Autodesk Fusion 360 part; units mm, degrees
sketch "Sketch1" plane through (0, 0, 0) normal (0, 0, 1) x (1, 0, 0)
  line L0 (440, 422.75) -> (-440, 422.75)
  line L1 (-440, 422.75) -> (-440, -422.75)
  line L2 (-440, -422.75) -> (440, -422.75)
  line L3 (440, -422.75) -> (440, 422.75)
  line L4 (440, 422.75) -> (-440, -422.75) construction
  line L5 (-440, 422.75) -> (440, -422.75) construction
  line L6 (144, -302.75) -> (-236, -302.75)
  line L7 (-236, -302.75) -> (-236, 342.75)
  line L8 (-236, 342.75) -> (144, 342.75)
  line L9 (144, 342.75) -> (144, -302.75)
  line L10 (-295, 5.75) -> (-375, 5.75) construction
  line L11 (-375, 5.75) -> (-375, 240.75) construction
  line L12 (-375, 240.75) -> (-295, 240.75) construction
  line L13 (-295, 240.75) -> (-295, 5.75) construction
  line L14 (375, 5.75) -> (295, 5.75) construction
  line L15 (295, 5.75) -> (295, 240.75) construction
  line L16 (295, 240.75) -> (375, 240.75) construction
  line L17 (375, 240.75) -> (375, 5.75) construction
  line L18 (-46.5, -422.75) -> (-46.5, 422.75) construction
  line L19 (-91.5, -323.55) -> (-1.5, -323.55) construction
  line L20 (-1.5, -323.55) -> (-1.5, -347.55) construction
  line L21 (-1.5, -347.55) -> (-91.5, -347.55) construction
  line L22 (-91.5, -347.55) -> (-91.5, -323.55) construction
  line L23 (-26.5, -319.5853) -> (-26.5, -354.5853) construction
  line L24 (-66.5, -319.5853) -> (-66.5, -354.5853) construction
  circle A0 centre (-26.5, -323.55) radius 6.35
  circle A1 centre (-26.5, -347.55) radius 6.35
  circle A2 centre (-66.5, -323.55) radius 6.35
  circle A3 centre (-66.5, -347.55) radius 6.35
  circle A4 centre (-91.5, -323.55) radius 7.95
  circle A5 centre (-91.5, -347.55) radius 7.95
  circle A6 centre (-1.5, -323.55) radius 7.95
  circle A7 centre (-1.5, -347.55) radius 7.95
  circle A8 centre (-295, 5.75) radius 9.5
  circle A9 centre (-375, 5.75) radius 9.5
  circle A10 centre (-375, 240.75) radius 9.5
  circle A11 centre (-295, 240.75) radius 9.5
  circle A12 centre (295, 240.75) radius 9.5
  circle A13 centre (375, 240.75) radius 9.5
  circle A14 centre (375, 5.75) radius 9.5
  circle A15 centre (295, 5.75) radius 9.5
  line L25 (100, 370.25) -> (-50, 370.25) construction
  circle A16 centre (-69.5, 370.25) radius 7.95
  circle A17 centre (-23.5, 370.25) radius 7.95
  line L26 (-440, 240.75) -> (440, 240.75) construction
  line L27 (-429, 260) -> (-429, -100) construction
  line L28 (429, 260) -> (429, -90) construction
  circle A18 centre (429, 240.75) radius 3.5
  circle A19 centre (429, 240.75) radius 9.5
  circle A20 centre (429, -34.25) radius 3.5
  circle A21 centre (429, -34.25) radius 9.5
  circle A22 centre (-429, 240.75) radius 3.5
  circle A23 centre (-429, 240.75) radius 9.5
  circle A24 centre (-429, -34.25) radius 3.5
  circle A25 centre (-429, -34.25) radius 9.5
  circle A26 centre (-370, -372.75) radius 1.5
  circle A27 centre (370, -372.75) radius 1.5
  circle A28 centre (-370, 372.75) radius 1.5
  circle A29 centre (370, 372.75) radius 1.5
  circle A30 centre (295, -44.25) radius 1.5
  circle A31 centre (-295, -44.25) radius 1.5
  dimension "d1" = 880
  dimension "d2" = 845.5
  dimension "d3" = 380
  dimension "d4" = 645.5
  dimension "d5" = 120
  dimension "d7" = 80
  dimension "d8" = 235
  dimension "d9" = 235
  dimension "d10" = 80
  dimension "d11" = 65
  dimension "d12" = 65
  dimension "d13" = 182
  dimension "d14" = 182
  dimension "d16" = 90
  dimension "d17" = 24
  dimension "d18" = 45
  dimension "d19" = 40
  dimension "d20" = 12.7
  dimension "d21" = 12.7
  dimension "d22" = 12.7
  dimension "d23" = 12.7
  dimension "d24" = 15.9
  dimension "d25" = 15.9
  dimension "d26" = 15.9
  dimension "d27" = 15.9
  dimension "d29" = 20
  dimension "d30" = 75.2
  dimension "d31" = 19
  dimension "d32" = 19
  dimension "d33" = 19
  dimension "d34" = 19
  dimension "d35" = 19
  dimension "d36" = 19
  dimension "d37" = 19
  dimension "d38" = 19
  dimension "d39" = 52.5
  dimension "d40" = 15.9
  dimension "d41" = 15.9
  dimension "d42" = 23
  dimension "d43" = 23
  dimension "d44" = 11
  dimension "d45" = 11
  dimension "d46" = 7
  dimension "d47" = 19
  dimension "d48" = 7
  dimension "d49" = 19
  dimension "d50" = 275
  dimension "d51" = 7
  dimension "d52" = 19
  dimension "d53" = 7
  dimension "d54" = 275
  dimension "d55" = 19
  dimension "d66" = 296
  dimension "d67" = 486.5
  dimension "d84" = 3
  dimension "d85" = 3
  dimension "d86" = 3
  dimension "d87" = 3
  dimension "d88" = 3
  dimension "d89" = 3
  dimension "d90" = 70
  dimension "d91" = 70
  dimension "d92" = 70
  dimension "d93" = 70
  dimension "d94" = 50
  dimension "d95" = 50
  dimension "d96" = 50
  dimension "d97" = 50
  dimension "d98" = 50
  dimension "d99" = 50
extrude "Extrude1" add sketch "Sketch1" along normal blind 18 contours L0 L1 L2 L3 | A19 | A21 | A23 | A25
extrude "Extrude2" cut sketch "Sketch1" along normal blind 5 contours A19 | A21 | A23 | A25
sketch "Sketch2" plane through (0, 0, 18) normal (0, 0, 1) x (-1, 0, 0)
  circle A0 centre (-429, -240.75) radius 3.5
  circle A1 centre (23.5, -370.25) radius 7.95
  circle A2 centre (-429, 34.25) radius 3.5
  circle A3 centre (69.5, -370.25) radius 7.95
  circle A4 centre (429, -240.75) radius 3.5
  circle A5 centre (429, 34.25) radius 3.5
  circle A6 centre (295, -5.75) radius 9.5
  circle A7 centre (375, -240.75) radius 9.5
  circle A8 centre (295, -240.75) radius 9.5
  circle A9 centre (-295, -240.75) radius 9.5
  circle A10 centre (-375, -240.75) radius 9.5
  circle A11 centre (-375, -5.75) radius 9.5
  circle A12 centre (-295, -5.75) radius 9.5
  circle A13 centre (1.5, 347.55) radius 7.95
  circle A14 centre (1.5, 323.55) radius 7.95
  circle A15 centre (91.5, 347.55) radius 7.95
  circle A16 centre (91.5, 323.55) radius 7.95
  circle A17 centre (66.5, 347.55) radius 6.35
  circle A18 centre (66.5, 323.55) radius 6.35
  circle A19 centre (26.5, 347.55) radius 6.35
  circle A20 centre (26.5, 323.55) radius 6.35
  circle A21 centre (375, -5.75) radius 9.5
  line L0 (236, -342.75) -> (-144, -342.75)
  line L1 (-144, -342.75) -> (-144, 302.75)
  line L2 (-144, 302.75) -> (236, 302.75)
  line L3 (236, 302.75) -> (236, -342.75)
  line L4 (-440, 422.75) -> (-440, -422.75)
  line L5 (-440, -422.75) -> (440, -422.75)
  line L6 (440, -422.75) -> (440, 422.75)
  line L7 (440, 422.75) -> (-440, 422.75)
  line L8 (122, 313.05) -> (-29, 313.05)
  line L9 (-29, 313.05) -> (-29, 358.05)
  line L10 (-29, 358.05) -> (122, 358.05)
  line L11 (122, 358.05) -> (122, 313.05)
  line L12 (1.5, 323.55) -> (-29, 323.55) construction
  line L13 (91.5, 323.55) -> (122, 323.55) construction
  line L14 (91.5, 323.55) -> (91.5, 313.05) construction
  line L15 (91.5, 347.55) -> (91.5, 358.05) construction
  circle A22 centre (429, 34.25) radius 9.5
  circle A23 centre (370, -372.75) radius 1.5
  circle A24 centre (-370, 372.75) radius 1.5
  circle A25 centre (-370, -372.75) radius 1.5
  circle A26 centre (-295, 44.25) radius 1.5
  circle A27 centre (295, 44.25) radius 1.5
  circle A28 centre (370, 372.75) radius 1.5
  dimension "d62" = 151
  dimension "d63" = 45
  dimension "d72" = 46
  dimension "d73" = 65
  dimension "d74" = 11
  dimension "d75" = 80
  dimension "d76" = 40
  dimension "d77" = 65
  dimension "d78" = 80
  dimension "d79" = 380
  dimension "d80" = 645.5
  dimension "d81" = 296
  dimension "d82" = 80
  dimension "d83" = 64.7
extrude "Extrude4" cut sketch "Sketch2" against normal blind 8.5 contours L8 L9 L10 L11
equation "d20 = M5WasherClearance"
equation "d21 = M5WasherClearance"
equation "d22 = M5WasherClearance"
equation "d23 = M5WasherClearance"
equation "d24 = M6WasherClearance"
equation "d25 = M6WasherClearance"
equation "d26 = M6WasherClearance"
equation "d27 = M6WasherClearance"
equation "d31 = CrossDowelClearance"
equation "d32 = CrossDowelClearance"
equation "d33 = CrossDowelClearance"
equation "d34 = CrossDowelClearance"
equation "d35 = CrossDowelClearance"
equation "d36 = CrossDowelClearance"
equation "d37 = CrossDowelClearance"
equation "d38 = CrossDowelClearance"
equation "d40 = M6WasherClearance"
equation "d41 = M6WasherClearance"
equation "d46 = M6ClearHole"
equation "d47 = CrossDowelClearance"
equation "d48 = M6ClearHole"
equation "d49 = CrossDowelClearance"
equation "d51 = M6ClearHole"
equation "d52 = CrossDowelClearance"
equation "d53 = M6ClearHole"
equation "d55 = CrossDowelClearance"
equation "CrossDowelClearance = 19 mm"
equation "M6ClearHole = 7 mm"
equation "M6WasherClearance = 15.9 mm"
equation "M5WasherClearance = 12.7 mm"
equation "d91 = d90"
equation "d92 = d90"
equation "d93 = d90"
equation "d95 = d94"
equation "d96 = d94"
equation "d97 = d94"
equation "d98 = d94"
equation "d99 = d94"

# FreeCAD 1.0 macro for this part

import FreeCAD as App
import Part
import Sketcher

doc = App.newDocument("Part")
body = doc.addObject("PartDesign::Body", "Body")

sketch1 = body.newObject("Sketcher::SketchObject", "Sketch")
sketch1.AttachmentSupport = (doc.getObject("XY_Plane"), [""])
sketch1.MapMode = "FlatFace"
sketch1.addGeometry(Part.LineSegment(App.Vector(440, -422.8, 0), App.Vector(440, 422.8, 0)), False)
sketch1.addGeometry(Part.LineSegment(App.Vector(440, 422.8, 0), App.Vector(-440, 422.8, 0)), False)
sketch1.addGeometry(Part.LineSegment(App.Vector(-440, 422.8, 0), App.Vector(-440, -422.8, 0)), False)
sketch1.addGeometry(Part.LineSegment(App.Vector(-440, -422.8, 0), App.Vector(440, -422.8, 0)), False)
sketch1.addGeometry(Part.Circle(App.Vector(-370, -372.8, 0), App.Vector(0, 0, 1), 1.5), False)
sketch1.addGeometry(Part.Circle(App.Vector(-91.5, -347.6, 0), App.Vector(0, 0, 1), 8), False)
sketch1.addGeometry(Part.Circle(App.Vector(-66.5, -347.6, 0), App.Vector(0, 0, 1), 6.3), False)
sketch1.addGeometry(Part.Circle(App.Vector(-91.5, -323.6, 0), App.Vector(0, 0, 1), 8), False)
sketch1.addGeometry(Part.Circle(App.Vector(-66.5, -323.6, 0), App.Vector(0, 0, 1), 6.3), False)
sketch1.addGeometry(Part.Circle(App.Vector(-26.5, -347.6, 0), App.Vector(0, 0, 1), 6.3), False)
sketch1.addGeometry(Part.Circle(App.Vector(-1.5, -347.6, 0), App.Vector(0, 0, 1), 8), False)
sketch1.addGeometry(Part.Circle(App.Vector(-26.5, -323.6, 0), App.Vector(0, 0, 1), 6.3), False)
sketch1.addGeometry(Part.Circle(App.Vector(-1.5, -323.6, 0), App.Vector(0, 0, 1), 8), False)
sketch1.addGeometry(Part.Circle(App.Vector(-295, -44.2, 0), App.Vector(0, 0, 1), 1.5), False)
sketch1.addGeometry(Part.Circle(App.Vector(370, -372.8, 0), App.Vector(0, 0, 1), 1.5), False)
sketch1.addGeometry(Part.Circle(App.Vector(295, -44.2, 0), App.Vector(0, 0, 1), 1.5), False)
sketch1.addGeometry(Part.Circle(App.Vector(-375, 5.8, 0), App.Vector(0, 0, 1), 9.5), False)
sketch1.addGeometry(Part.Circle(App.Vector(-295, 5.8, 0), App.Vector(0, 0, 1), 9.5), False)
sketch1.addGeometry(Part.LineSegment(App.Vector(144, 342.8, 0), App.Vector(144, -302.8, 0)), False)
sketch1.addGeometry(Part.LineSegment(App.Vector(144, -302.8, 0), App.Vector(-236, -302.8, 0)), False)
sketch1.addGeometry(Part.LineSegment(App.Vector(-236, -302.8, 0), App.Vector(-236, 342.8, 0)), False)
sketch1.addGeometry(Part.LineSegment(App.Vector(-236, 342.8, 0), App.Vector(144, 342.8, 0)), False)
sketch1.addGeometry(Part.Circle(App.Vector(-375, 240.8, 0), App.Vector(0, 0, 1), 9.5), False)
sketch1.addGeometry(Part.Circle(App.Vector(-295, 240.8, 0), App.Vector(0, 0, 1), 9.5), False)
sketch1.addGeometry(Part.Circle(App.Vector(-370, 372.8, 0), App.Vector(0, 0, 1), 1.5), False)
sketch1.addGeometry(Part.Circle(App.Vector(-69.5, 370.2, 0), App.Vector(0, 0, 1), 8), False)
sketch1.addGeometry(Part.Circle(App.Vector(-23.5, 370.2, 0), App.Vector(0, 0, 1), 8), False)
sketch1.addGeometry(Part.Circle(App.Vector(295, 5.8, 0), App.Vector(0, 0, 1), 9.5), False)
sketch1.addGeometry(Part.Circle(App.Vector(375, 5.8, 0), App.Vector(0, 0, 1), 9.5), False)
sketch1.addGeometry(Part.Circle(App.Vector(295, 240.8, 0), App.Vector(0, 0, 1), 9.5), False)
sketch1.addGeometry(Part.Circle(App.Vector(375, 240.8, 0), App.Vector(0, 0, 1), 9.5), False)
sketch1.addGeometry(Part.Circle(App.Vector(370, 372.8, 0), App.Vector(0, 0, 1), 1.5), False)
sketch1.addGeometry(Part.Circle(App.Vector(-429, -34.2, 0), App.Vector(0, 0, 1), 3.5), False)
sketch1.addGeometry(Part.Circle(App.Vector(429, -34.2, 0), App.Vector(0, 0, 1), 3.5), False)
sketch1.addGeometry(Part.Circle(App.Vector(-429, 240.8, 0), App.Vector(0, 0, 1), 3.5), False)
sketch1.addGeometry(Part.Circle(App.Vector(429, 240.8, 0), App.Vector(0, 0, 1), 3.5), False)
sketch1.addConstraint(Sketcher.Constraint("Coincident", 0, 2, 1, 1))
sketch1.addConstraint(Sketcher.Constraint("Coincident", 1, 2, 2, 1))
sketch1.addConstraint(Sketcher.Constraint("Coincident", 2, 2, 3, 1))
sketch1.addConstraint(Sketcher.Constraint("Coincident", 3, 2, 0, 1))
sketch1.addConstraint(Sketcher.Constraint("Coincident", 18, 2, 19, 1))
sketch1.addConstraint(Sketcher.Constraint("Coincident", 19, 2, 20, 1))
sketch1.addConstraint(Sketcher.Constraint("Coincident", 20, 2, 21, 1))
sketch1.addConstraint(Sketcher.Constraint("Coincident", 21, 2, 18, 1))
sketch1.addConstraint(Sketcher.Constraint("Vertical", 0))
sketch1.addConstraint(Sketcher.Constraint("Horizontal", 1))
sketch1.addConstraint(Sketcher.Constraint("Vertical", 2))
sketch1.addConstraint(Sketcher.Constraint("Horizontal", 3))
sketch1.addConstraint(Sketcher.Constraint("Vertical", 18))
sketch1.addConstraint(Sketcher.Constraint("Horizontal", 19))
sketch1.addConstraint(Sketcher.Constraint("Vertical", 20))
sketch1.addConstraint(Sketcher.Constraint("Horizontal", 21))
sketch1.addConstraint(Sketcher.Constraint("Equal", 5, 7))
sketch1.addConstraint(Sketcher.Constraint("Equal", 6, 8))
sketch1.addConstraint(Sketcher.Constraint("Equal", 8, 9))
sketch1.addConstraint(Sketcher.Constraint("Equal", 7, 10))
sketch1.addConstraint(Sketcher.Constraint("Equal", 9, 11))
sketch1.addConstraint(Sketcher.Constraint("Equal", 10, 12))
sketch1.addConstraint(Sketcher.Constraint("Equal", 4, 13))
sketch1.addConstraint(Sketcher.Constraint("Equal", 13, 14))
sketch1.addConstraint(Sketcher.Constraint("Equal", 14, 15))
sketch1.addConstraint(Sketcher.Constraint("Equal", 16, 17))
sketch1.addConstraint(Sketcher.Constraint("Equal", 17, 22))
sketch1.addConstraint(Sketcher.Constraint("Equal", 22, 23))
sketch1.addConstraint(Sketcher.Constraint("Equal", 15, 24))
sketch1.addConstraint(Sketcher.Constraint("Equal", 12, 25))
sketch1.addConstraint(Sketcher.Constraint("Equal", 25, 26))
sketch1.addConstraint(Sketcher.Constraint("Equal", 23, 27))
sketch1.addConstraint(Sketcher.Constraint("Equal", 27, 28))
sketch1.addConstraint(Sketcher.Constraint("Equal", 28, 29))
sketch1.addConstraint(Sketcher.Constraint("Equal", 29, 30))
sketch1.addConstraint(Sketcher.Constraint("Equal", 24, 31))
sketch1.addConstraint(Sketcher.Constraint("Equal", 32, 33))
sketch1.addConstraint(Sketcher.Constraint("Equal", 33, 34))
sketch1.addConstraint(Sketcher.Constraint("Equal", 34, 35))
sketch1.addConstraint(Sketcher.Constraint("Symmetric", 14, 3, 24, 3, -1, 1))
sketch1.addConstraint(Sketcher.Constraint("Symmetric", 4, 3, 31, 3, -1, 1))
sketch1.addConstraint(Sketcher.Constraint("Symmetric", 0, 2, 2, 2, -1, 1))
sketch1.addConstraint(Sketcher.Constraint("Symmetric", 4, 3, 14, 3, -2))
sketch1.addConstraint(Sketcher.Constraint("Symmetric", 13, 3, 15, 3, -2))
sketch1.addConstraint(Sketcher.Constraint("Symmetric", 17, 3, 27, 3, -2))
sketch1.addConstraint(Sketcher.Constraint("Symmetric", 16, 3, 28, 3, -2))
sketch1.addConstraint(Sketcher.Constraint("Symmetric", 23, 3, 29, 3, -2))
sketch1.addConstraint(Sketcher.Constraint("Symmetric", 22, 3, 30, 3, -2))
sketch1.addConstraint(Sketcher.Constraint("Symmetric", 32, 3, 33, 3, -2))
sketch1.addConstraint(Sketcher.Constraint("Symmetric", 34, 3, 35, 3, -2))
sketch1.addConstraint(Sketcher.Constraint("Horizontal", 5, 3, 6, 3))
sketch1.addConstraint(Sketcher.Constraint("Horizontal", 7, 3, 8, 3))
sketch1.addConstraint(Sketcher.Constraint("Horizontal", 6, 3, 9, 3))
sketch1.addConstraint(Sketcher.Constraint("Horizontal", 9, 3, 10, 3))
sketch1.addConstraint(Sketcher.Constraint("Horizontal", 8, 3, 11, 3))
sketch1.addConstraint(Sketcher.Constraint("Horizontal", 11, 3, 12, 3))
sketch1.addConstraint(Sketcher.Constraint("Horizontal", 16, 3, 17, 3))
sketch1.addConstraint(Sketcher.Constraint("Horizontal", 22, 3, 23, 3))
sketch1.addConstraint(Sketcher.Constraint("Horizontal", 25, 3, 26, 3))
sketch1.addConstraint(Sketcher.Constraint("Horizontal", 30, 3, 34, 3))
sketch1.addConstraint(Sketcher.Constraint("Vertical", 5, 3, 7, 3))
sketch1.addConstraint(Sketcher.Constraint("Vertical", 6, 3, 8, 3))
sketch1.addConstraint(Sketcher.Constraint("Vertical", 9, 3, 11, 3))
sketch1.addConstraint(Sketcher.Constraint("Vertical", 10, 3, 12, 3))
sketch1.addConstraint(Sketcher.Constraint("Vertical", 13, 3, 17, 3))
sketch1.addConstraint(Sketcher.Constraint("Vertical", 16, 3, 22, 3))
sketch1.addConstraint(Sketcher.Constraint("Vertical", 17, 3, 23, 3))
sketch1.addConstraint(Sketcher.Constraint("Vertical", 32, 3, 34, 3))
sketch1.addConstraint(Sketcher.Constraint("Diameter", 4, 3.0))
sketch1.addConstraint(Sketcher.Constraint("Diameter", 16, 19.0))
sketch1.addConstraint(Sketcher.Constraint("Diameter", 32, 7.0))
sketch1.addConstraint(Sketcher.Constraint("Diameter", 5, 15.9))
sketch1.addConstraint(Sketcher.Constraint("Diameter", 6, 12.7))
sketch1.addConstraint(Sketcher.Constraint("DistanceX", 1, 2, 1, 1, 880.0))
sketch1.addConstraint(Sketcher.Constraint("DistanceX", 19, 2, 19, 1, 380.0))
sketch1.addConstraint(Sketcher.Constraint("DistanceY", 0, 1, 0, 2, 845.5))
sketch1.addConstraint(Sketcher.Constraint("DistanceY", 18, 2, 18, 1, 645.5))
sketch1.addConstraint(Sketcher.Constraint("DistanceY", 5, 3, 7, 3, 24.0))
sketch1.addConstraint(Sketcher.Constraint("DistanceX", 6, 3, 9, 3, 40.0))
sketch1.addConstraint(Sketcher.Constraint("DistanceX", 5, 3, 9, 3, 65.0))
sketch1.addConstraint(Sketcher.Constraint("DistanceX", 6, 3, 10, 3, 65.0))
sketch1.addConstraint(Sketcher.Constraint("DistanceX", 16, 3, 13, 3, 80.0))
sketch1.addConstraint(Sketcher.Constraint("DistanceY", 13, 3, 16, 3, 50.0))
sketch1.addConstraint(Sketcher.Constraint("DistanceY", 16, 3, 22, 3, 235.0))
sketch1.addConstraint(Sketcher.Constraint("DistanceY", 32, 3, 16, 3, 40.0))
sketch1.addConstraint(Sketcher.Constraint("DistanceX", 31, 3, 0, 2, 70.0))
sketch1.addConstraint(Sketcher.Constraint("DistanceY", 31, 3, 0, 2, 50.0))
sketch1.addConstraint(Sketcher.Constraint("DistanceX", 35, 3, 0, 2, 11.0))
sketch1.addConstraint(Sketcher.Constraint("DistanceY", 35, 3, 0, 2, 182.0))
sketch1.addConstraint(Sketcher.Constraint("DistanceX", 30, 3, 0, 2, 65.0))
sketch1.addConstraint(Sketcher.Constraint("DistanceY", 4, 3, 19, 2, 70.0))
sketch1.addConstraint(Sketcher.Constraint("DistanceY", 25, 3, 1, 2, 52.5))
sketch1.addConstraint(Sketcher.Constraint("DistanceY", 2, 2, 5, 3, 75.2))
sketch1.addConstraint(Sketcher.Constraint("DistanceX", -1, 1, 18, 2, 144.0))
sketch1.addConstraint(Sketcher.Constraint("DistanceX", 25, 3, 26, 3, 46.0))
sketch1.addConstraint(Sketcher.Constraint("DistanceX", 5, 3, -1, 1, 91.5))
sketch1.addConstraint(Sketcher.Constraint("DistanceX", 25, 3, -1, 1, 69.5))
pad1 = body.newObject("PartDesign::Pad", "Pad")
pad1.Profile = sketch1
pad1.Length = 18

sketch2 = body.newObject("Sketcher::SketchObject", "Sketch001")
sketch2.AttachmentSupport = (doc.getObject("XY_Plane"), [""])
sketch2.MapMode = "FlatFace"
sketch2.addGeometry(Part.Circle(App.Vector(429, 240.8, 0), App.Vector(0, 0, 1), 9.5), False)
sketch2.addGeometry(Part.Circle(App.Vector(429, 240.8, 0), App.Vector(0, 0, 1), 3.5), False)
sketch2.addGeometry(Part.Circle(App.Vector(429, -34.2, 0), App.Vector(0, 0, 1), 9.5), False)
sketch2.addGeometry(Part.Circle(App.Vector(429, -34.2, 0), App.Vector(0, 0, 1), 3.5), False)
sketch2.addGeometry(Part.Circle(App.Vector(-429, 240.8, 0), App.Vector(0, 0, 1), 9.5), False)
sketch2.addGeometry(Part.Circle(App.Vector(-429, 240.8, 0), App.Vector(0, 0, 1), 3.5), False)
sketch2.addGeometry(Part.Circle(App.Vector(-429, -34.2, 0), App.Vector(0, 0, 1), 9.5), False)
sketch2.addGeometry(Part.Circle(App.Vector(-429, -34.2, 0), App.Vector(0, 0, 1), 3.5), False)
sketch2.addConstraint(Sketcher.Constraint("Coincident", 1, 3, 0, 3))
sketch2.addConstraint(Sketcher.Constraint("Coincident", 3, 3, 2, 3))
sketch2.addConstraint(Sketcher.Constraint("Coincident", 5, 3, 4, 3))
sketch2.addConstraint(Sketcher.Constraint("Coincident", 7, 3, 6, 3))
sketch2.addConstraint(Sketcher.Constraint("Equal", 0, 2))
sketch2.addConstraint(Sketcher.Constraint("Equal", 1, 3))
sketch2.addConstraint(Sketcher.Constraint("Equal", 2, 4))
sketch2.addConstraint(Sketcher.Constraint("Equal", 3, 5))
sketch2.addConstraint(Sketcher.Constraint("Equal", 4, 6))
sketch2.addConstraint(Sketcher.Constraint("Equal", 5, 7))
sketch2.addConstraint(Sketcher.Constraint("Symmetric", 0, 3, 4, 3, -2))
sketch2.addConstraint(Sketcher.Constraint("Symmetric", 2, 3, 6, 3, -2))
sketch2.addConstraint(Sketcher.Constraint("Vertical", 1, 3, 2, 3))
sketch2.addConstraint(Sketcher.Constraint("Diameter", 0, 19.0))
sketch2.addConstraint(Sketcher.Constraint("Diameter", 1, 7.0))
sketch2.addConstraint(Sketcher.Constraint("DistanceY", 2, 3, 0, 3, 275.0))
sketch2.addConstraint(Sketcher.Constraint("DistanceX", -1, 1, 0, 3, 429.0))
sketch2.addConstraint(Sketcher.Constraint("DistanceY", -1, 1, 0, 3, 240.75))
pocket1 = body.newObject("PartDesign::Pocket", "Pocket")
pocket1.Profile = sketch2
pocket1.Length = 5
pocket1.Reversed = True

sketch3 = body.newObject("Sketcher::SketchObject", "Sketch002")
sketch3.AttachmentSupport = (doc.getObject("XY_Plane"), [""])
sketch3.MapMode = "FlatFace"
sketch3.AttachmentOffset = App.Placement(App.Vector(0, 0, 18), App.Rotation())
sketch3.addGeometry(Part.LineSegment(App.Vector(29, -313, 0), App.Vector(-122, -313, 0)), False)
sketch3.addGeometry(Part.LineSegment(App.Vector(-122, -313, 0), App.Vector(-122, -358, 0)), False)
sketch3.addGeometry(Part.LineSegment(App.Vector(-122, -358, 0), App.Vector(29, -358, 0)), False)
sketch3.addGeometry(Part.LineSegment(App.Vector(29, -358, 0), App.Vector(29, -313, 0)), False)
sketch3.addGeometry(Part.Circle(App.Vector(-2, -324, 0), App.Vector(0, 0, 1), 8), False)
sketch3.addGeometry(Part.Circle(App.Vector(-26, -324, 0), App.Vector(0, 0, 1), 6), False)
sketch3.addGeometry(Part.Circle(App.Vector(-2, -348, 0), App.Vector(0, 0, 1), 8), False)
sketch3.addGeometry(Part.Circle(App.Vector(-26, -348, 0), App.Vector(0, 0, 1), 6), False)
sketch3.addGeometry(Part.Circle(App.Vector(-66, -324, 0), App.Vector(0, 0, 1), 6), False)
sketch3.addGeometry(Part.Circle(App.Vector(-92, -324, 0), App.Vector(0, 0, 1), 8), False)
sketch3.addGeometry(Part.Circle(App.Vector(-66, -348, 0), App.Vector(0, 0, 1), 6), False)
sketch3.addGeometry(Part.Circle(App.Vector(-92, -348, 0), App.Vector(0, 0, 1), 8), False)
sketch3.addConstraint(Sketcher.Constraint("Coincident", 0, 2, 1, 1))
sketch3.addConstraint(Sketcher.Constraint("Coincident", 1, 2, 2, 1))
sketch3.addConstraint(Sketcher.Constraint("Coincident", 2, 2, 3, 1))
sketch3.addConstraint(Sketcher.Constraint("Coincident", 3, 2, 0, 1))
sketch3.addConstraint(Sketcher.Constraint("Horizontal", 0))
sketch3.addConstraint(Sketcher.Constraint("Vertical", 1))
sketch3.addConstraint(Sketcher.Constraint("Horizontal", 2))
sketch3.addConstraint(Sketcher.Constraint("Vertical", 3))
sketch3.addConstraint(Sketcher.Constraint("Equal", 4, 6))
sketch3.addConstraint(Sketcher.Constraint("Equal", 5, 7))
sketch3.addConstraint(Sketcher.Constraint("Equal", 7, 8))
sketch3.addConstraint(Sketcher.Constraint("Equal", 6, 9))
sketch3.addConstraint(Sketcher.Constraint("Equal", 8, 10))
sketch3.addConstraint(Sketcher.Constraint("Equal", 9, 11))
sketch3.addConstraint(Sketcher.Constraint("Horizontal", 4, 3, 5, 3))
sketch3.addConstraint(Sketcher.Constraint("Horizontal", 6, 3, 7, 3))
sketch3.addConstraint(Sketcher.Constraint("Horizontal", 5, 3, 8, 3))
sketch3.addConstraint(Sketcher.Constraint("Horizontal", 8, 3, 9, 3))
sketch3.addConstraint(Sketcher.Constraint("Horizontal", 7, 3, 10, 3))
sketch3.addConstraint(Sketcher.Constraint("Horizontal", 10, 3, 11, 3))
sketch3.addConstraint(Sketcher.Constraint("Vertical", 4, 3, 6, 3))
sketch3.addConstraint(Sketcher.Constraint("Vertical", 5, 3, 7, 3))
sketch3.addConstraint(Sketcher.Constraint("Vertical", 8, 3, 10, 3))
sketch3.addConstraint(Sketcher.Constraint("Vertical", 9, 3, 11, 3))
sketch3.addConstraint(Sketcher.Constraint("DistanceX", 0, 2, 0, 1, 151.0))
sketch3.addConstraint(Sketcher.Constraint("DistanceY", 1, 2, 1, 1, 45.0))
sketch3.addConstraint(Sketcher.Constraint("DistanceX", 8, 3, 5, 3, 40.0))
sketch3.addConstraint(Sketcher.Constraint("DistanceX", 8, 3, 4, 3, 65.0))
sketch3.addConstraint(Sketcher.Constraint("DistanceX", 9, 3, 5, 3, 65.0))
sketch3.addConstraint(Sketcher.Constraint("Diameter", 4, 15.9))
sketch3.addConstraint(Sketcher.Constraint("Diameter", 5, 12.7))
sketch3.addConstraint(Sketcher.Constraint("DistanceX", 0, 2, -1, 1, 122.0))
sketch3.addConstraint(Sketcher.Constraint("DistanceY", 6, 3, 4, 3, 24.0))
sketch3.addConstraint(Sketcher.Constraint("DistanceX", 4, 3, -1, 1, 1.5))
sketch3.addConstraint(Sketcher.Constraint("DistanceY", 9, 3, 0, 2, 10.5))
sketch3.addConstraint(Sketcher.Constraint("DistanceY", 4, 3, -1, 1, 323.55))
pocket2 = body.newObject("PartDesign::Pocket", "Pocket001")
pocket2.Profile = sketch3
pocket2.Length = 8.5

doc.recompute()
